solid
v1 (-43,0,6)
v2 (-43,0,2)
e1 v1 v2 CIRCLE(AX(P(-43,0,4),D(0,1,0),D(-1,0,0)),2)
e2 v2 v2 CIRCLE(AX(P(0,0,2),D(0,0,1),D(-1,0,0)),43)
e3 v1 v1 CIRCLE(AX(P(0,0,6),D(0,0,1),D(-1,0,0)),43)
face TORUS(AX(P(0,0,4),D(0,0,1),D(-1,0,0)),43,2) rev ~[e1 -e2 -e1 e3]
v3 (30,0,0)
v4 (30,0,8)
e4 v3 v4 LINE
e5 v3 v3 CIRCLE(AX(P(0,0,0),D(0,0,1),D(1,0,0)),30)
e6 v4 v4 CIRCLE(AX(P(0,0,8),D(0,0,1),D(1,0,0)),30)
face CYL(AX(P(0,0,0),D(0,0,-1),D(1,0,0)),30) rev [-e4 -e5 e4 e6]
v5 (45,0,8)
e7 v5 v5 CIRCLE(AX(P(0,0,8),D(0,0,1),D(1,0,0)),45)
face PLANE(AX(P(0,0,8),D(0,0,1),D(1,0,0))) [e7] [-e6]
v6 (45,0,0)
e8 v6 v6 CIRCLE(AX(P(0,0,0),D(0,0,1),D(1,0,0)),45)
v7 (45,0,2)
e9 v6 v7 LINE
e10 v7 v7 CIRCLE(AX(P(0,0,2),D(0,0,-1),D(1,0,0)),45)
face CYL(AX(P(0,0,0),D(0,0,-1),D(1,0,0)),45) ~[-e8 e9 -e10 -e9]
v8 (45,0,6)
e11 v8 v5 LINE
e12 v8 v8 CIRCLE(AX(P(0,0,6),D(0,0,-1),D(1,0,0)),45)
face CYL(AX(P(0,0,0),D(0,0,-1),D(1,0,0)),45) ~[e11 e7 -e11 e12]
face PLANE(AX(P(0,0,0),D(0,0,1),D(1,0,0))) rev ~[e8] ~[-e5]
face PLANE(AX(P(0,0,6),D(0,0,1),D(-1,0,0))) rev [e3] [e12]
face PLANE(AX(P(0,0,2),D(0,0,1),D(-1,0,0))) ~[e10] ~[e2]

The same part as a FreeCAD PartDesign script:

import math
import FreeCAD as App
import Part
import Sketcher

V = App.Vector
Q = App.Units.Quantity

doc = App.newDocument("Part")
body = doc.addObject("PartDesign::Body", "Body")

# Sketch on XY plane
sketch1 = body.newObject("Sketcher::SketchObject", "Sketch")
sketch1.AttachmentSupport = (doc.getObject("XY_Plane"), [""])
sketch1.MapMode = "FlatFace"
sketch1.addGeometry(Part.Circle(V(0, 0, 0), V(0, 0, 1), 45), False)
sketch1.addGeometry(Part.Circle(V(0, 0, 0), V(0, 0, 1), 30), False)
sketch1.addConstraint(Sketcher.Constraint("Coincident", 0, 3, -1, 1))
sketch1.addConstraint(Sketcher.Constraint("Coincident", 1, 3, -1, 1))
sketch1.addConstraint(Sketcher.Constraint("Diameter", 0, Q("90 mm")))
sketch1.addConstraint(Sketcher.Constraint("Diameter", 1, Q("60 mm")))
pad1 = body.newObject("PartDesign::Pad", "Pad")
pad1.Profile = sketch1
pad1.Length = 8

# Sketch on XZ plane
sketch2 = body.newObject("Sketcher::SketchObject", "Sketch001")
sketch2.AttachmentSupport = (doc.getObject("XZ_Plane"), [""])
sketch2.MapMode = "FlatFace"
sketch2.addGeometry(Part.LineSegment(V(-43, 2, 0), V(-45, 2, 0)), False)
sketch2.addGeometry(Part.LineSegment(V(-45, 2, 0), V(-45, 6, 0)), False)
sketch2.addGeometry(Part.LineSegment(V(-45, 6, 0), V(-43, 6, 0)), False)
sketch2.addGeometry(Part.ArcOfCircle(Part.Circle(V(-43, 4, 0), V(0, 0, 1), 2), math.radians(-90), math.radians(90)), False)
sketch2.addConstraint(Sketcher.Constraint("Coincident", 0, 2, 1, 1))
sketch2.addConstraint(Sketcher.Constraint("Coincident", 1, 2, 2, 1))
sketch2.addConstraint(Sketcher.Constraint("Tangent", 2, 2, 3, 2))
sketch2.addConstraint(Sketcher.Constraint("Tangent", 3, 1, 0, 1))
sketch2.addConstraint(Sketcher.Constraint("Horizontal", 0))
sketch2.addConstraint(Sketcher.Constraint("Vertical", 1))
sketch2.addConstraint(Sketcher.Constraint("Horizontal", 2))
sketch2.addConstraint(Sketcher.Constraint("Radius", 3, Q("2 mm")))
sketch2.addConstraint(Sketcher.Constraint("DistanceX", 0, 2, 0, 1, Q("2 mm")))
sketch2.addConstraint(Sketcher.Constraint("DistanceY", -1, 1, 3, 3, Q("4 mm")))
sketch2.addConstraint(Sketcher.Constraint("DistanceX", 3, 3, -1, 1, Q("43 mm")))
groove = body.newObject("PartDesign::Groove", "Groove")
groove.Profile = sketch2
groove.ReferenceAxis = (sketch2, ["V_Axis"])
groove.Angle = 360

doc.recompute()
